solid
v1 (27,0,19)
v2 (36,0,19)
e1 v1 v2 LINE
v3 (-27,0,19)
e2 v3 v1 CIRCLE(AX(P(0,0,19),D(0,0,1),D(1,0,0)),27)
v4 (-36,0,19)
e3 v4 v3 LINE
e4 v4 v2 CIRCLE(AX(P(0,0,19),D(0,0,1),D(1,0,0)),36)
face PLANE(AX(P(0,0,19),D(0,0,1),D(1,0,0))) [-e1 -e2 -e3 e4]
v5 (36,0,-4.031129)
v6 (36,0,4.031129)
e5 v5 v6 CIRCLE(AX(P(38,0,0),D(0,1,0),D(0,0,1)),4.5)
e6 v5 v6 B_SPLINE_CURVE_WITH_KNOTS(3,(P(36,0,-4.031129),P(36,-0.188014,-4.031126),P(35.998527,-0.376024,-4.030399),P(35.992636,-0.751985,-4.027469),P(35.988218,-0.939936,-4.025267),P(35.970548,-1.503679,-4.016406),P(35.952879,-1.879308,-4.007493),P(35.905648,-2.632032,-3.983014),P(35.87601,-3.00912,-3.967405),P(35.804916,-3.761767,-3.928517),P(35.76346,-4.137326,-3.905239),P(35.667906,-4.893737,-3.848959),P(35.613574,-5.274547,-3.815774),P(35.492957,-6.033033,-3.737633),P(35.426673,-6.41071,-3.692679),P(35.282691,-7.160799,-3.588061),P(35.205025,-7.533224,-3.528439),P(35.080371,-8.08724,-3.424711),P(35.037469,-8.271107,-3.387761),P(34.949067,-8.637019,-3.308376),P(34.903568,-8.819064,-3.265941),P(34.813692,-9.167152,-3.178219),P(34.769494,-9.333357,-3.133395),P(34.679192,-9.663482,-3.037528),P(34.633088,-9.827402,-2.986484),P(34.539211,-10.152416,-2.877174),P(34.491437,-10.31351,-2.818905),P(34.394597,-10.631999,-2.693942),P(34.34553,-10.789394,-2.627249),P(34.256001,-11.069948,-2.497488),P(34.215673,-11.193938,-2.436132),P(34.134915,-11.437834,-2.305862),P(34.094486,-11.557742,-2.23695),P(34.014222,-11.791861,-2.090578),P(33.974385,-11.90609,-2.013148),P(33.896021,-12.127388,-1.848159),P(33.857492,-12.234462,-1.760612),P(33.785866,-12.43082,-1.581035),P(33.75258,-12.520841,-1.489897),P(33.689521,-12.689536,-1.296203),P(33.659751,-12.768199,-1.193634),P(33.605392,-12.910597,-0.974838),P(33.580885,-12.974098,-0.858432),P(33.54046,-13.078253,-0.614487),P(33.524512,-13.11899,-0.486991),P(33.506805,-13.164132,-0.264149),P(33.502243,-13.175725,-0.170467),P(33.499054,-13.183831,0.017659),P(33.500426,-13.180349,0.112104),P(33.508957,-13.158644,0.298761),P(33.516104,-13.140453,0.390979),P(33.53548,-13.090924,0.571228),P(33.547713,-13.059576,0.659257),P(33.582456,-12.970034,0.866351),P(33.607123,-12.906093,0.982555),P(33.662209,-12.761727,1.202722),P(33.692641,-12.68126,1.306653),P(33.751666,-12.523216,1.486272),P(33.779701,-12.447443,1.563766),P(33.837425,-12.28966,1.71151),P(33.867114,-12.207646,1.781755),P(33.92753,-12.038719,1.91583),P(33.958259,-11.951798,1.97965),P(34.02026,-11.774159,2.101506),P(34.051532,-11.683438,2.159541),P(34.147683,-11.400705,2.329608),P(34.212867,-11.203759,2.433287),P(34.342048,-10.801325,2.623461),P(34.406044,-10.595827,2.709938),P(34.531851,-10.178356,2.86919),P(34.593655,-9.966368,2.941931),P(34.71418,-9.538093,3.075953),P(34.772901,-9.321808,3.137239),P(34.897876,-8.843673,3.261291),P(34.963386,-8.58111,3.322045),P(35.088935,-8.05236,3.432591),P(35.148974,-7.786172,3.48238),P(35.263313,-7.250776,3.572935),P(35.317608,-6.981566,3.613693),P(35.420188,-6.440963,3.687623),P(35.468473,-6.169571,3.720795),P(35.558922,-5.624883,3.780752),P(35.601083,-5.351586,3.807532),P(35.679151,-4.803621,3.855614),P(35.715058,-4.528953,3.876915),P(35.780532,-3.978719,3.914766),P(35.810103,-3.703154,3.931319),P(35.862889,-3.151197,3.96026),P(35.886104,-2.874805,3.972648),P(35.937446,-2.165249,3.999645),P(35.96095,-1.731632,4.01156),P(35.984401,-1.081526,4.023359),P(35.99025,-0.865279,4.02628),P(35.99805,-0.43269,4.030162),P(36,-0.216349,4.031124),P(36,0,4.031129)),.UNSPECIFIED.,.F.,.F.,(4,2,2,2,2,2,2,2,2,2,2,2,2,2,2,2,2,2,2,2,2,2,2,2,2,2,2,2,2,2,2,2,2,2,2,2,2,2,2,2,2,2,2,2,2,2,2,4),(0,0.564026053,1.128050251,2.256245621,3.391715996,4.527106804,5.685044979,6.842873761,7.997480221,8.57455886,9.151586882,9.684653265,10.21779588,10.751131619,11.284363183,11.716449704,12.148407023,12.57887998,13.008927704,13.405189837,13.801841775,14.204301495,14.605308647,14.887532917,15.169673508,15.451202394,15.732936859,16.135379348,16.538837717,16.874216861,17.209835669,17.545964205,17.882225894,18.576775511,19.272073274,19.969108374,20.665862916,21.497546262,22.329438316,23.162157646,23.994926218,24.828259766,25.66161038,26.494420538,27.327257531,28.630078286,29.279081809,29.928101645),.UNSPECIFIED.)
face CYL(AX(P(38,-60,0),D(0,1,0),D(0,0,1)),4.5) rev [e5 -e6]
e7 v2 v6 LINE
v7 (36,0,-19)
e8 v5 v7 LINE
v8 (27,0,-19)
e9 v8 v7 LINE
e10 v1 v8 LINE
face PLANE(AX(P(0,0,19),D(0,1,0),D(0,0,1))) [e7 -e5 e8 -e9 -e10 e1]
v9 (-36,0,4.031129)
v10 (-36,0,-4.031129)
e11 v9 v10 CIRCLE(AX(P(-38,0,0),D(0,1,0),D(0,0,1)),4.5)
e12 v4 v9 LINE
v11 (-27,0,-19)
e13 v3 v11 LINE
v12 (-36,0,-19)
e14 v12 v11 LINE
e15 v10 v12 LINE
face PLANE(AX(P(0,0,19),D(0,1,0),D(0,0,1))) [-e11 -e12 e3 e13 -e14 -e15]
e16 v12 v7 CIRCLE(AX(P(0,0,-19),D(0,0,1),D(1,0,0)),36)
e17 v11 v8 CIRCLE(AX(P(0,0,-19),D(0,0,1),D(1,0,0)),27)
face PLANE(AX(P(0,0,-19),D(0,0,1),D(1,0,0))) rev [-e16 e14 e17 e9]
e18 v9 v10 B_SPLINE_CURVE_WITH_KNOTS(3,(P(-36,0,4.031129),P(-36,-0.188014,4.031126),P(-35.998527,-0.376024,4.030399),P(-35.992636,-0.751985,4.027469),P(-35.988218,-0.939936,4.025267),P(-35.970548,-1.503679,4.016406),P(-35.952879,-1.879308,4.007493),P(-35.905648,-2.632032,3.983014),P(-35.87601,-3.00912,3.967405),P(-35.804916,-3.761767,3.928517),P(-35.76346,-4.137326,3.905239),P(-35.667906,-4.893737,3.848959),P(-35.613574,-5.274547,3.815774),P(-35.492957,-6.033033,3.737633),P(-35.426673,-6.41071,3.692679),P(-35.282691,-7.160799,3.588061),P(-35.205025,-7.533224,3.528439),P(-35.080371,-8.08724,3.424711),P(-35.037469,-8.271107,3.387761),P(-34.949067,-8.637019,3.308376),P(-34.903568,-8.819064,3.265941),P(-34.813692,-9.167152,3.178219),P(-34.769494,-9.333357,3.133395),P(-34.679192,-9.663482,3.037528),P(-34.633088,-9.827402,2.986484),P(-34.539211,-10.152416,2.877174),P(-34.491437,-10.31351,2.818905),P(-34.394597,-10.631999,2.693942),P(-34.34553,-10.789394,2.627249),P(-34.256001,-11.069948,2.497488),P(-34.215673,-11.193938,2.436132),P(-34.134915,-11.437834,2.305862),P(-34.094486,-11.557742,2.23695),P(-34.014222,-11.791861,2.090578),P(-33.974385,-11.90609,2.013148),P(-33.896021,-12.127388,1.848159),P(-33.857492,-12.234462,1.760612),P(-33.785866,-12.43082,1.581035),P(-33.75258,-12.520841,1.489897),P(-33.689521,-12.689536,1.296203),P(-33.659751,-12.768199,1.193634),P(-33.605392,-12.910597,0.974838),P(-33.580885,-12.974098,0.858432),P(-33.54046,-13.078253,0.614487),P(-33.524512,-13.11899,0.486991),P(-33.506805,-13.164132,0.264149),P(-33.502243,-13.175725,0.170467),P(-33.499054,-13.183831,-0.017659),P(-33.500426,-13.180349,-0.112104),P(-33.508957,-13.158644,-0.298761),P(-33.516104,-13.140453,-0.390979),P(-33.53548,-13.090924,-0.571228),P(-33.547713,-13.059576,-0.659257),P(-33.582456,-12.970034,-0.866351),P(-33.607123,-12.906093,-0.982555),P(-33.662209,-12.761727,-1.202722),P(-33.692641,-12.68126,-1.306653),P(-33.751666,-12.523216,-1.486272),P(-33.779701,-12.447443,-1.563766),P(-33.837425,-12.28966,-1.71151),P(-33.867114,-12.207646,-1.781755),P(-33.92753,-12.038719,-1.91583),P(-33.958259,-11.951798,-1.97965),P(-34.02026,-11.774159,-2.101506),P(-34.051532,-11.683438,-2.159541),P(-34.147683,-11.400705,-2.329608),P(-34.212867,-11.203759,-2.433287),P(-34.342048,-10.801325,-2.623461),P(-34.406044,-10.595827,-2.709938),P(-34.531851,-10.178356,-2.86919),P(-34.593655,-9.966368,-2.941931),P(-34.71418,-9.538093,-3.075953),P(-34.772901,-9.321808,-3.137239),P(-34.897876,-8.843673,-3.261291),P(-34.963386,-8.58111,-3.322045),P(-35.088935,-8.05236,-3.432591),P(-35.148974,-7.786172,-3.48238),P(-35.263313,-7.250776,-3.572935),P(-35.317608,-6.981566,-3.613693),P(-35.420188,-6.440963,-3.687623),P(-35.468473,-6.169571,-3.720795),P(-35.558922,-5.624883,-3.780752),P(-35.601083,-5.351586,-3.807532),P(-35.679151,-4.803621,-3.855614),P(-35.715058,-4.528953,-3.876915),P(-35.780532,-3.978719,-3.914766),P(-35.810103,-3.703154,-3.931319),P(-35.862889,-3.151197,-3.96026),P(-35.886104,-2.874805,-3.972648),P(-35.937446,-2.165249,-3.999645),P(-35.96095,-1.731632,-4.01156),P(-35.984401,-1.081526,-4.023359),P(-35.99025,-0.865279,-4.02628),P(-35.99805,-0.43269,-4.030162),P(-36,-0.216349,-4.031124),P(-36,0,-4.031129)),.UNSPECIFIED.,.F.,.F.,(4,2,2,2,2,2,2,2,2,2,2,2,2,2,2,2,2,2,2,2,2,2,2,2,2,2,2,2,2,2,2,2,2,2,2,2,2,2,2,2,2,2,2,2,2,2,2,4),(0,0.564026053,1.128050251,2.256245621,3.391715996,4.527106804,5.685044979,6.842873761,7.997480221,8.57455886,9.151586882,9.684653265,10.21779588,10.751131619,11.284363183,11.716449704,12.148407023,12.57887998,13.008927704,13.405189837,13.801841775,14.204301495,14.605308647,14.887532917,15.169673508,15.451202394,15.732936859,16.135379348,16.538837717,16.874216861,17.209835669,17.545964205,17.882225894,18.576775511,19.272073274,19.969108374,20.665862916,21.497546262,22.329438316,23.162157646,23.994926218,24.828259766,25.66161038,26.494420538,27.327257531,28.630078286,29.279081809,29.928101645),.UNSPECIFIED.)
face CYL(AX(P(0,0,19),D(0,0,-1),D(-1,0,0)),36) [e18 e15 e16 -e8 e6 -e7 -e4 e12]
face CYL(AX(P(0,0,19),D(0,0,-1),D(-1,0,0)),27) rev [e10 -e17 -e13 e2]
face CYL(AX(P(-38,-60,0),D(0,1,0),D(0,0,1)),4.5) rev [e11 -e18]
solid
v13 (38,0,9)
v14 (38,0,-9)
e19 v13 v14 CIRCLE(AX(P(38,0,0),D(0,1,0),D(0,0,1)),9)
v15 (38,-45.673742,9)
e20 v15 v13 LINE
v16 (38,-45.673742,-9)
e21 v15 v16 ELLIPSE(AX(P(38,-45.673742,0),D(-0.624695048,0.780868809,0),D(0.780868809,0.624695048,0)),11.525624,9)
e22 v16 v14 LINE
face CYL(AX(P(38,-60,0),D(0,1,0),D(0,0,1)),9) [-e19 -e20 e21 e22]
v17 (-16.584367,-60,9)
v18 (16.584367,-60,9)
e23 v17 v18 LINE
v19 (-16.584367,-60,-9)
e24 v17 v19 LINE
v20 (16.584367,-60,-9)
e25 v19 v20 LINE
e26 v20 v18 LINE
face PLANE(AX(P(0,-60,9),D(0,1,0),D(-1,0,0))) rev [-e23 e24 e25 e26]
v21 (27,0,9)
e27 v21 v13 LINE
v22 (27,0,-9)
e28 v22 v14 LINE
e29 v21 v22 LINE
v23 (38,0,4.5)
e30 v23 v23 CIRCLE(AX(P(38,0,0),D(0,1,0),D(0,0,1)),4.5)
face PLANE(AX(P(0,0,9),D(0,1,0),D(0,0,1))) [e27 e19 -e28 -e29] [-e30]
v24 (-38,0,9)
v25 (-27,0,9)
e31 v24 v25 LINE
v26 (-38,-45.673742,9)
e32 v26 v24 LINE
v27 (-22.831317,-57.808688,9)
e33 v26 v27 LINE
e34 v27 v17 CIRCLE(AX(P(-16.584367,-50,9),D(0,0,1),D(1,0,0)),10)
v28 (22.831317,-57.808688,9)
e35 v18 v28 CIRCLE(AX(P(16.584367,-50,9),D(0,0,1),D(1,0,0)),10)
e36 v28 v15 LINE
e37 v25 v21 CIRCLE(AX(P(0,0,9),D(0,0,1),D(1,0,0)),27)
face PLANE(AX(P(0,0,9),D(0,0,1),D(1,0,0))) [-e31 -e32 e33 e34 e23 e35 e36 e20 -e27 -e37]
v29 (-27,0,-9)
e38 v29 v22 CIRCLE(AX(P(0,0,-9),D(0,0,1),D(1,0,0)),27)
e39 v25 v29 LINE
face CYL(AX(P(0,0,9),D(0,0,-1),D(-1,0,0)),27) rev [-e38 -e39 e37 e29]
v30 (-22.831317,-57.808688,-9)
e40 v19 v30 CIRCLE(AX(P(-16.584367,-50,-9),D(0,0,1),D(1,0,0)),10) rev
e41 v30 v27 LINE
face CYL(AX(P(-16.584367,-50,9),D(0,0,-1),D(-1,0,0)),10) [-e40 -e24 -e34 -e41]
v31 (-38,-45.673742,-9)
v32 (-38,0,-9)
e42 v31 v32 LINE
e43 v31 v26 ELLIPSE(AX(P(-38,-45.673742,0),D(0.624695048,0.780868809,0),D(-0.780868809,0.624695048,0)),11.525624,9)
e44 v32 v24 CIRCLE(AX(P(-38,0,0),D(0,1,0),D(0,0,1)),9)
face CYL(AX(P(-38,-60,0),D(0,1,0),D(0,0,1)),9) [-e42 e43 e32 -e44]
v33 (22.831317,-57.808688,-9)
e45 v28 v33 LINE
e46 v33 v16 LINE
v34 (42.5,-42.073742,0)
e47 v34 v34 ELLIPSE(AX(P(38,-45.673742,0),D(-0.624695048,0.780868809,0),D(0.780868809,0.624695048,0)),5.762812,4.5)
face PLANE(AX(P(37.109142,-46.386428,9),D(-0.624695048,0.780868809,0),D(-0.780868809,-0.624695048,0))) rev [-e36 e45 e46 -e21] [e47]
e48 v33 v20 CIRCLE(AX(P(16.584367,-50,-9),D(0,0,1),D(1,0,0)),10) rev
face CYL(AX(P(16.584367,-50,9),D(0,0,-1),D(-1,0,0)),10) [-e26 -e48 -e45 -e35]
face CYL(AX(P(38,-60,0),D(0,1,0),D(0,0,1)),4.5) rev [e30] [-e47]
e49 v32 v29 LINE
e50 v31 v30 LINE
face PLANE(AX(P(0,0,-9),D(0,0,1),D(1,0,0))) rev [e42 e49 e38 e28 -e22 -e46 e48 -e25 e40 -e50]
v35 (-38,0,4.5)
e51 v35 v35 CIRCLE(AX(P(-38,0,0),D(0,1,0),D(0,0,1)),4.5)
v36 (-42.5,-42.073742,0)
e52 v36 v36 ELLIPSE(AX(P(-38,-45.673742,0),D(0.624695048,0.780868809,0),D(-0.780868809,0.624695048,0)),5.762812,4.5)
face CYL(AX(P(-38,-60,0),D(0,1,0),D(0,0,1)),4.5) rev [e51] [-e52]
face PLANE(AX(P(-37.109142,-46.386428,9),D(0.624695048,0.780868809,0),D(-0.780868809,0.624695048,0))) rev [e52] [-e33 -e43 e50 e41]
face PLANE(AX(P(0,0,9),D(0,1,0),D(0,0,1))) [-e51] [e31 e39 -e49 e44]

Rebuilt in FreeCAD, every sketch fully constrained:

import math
import FreeCAD as App
import Part
import Sketcher
from FreeCAD import Vector


def edges_at(feature, points):
    """Names of the edges that pass closest to the given points."""
    edges = feature.Shape.Edges
    near = lambda p: min(range(len(edges)), key=lambda i: edges[i].distToShape(Part.Vertex(*p))[0])
    return sorted({f"Edge{near(p) + 1}" for p in points})


def add_polygon(sketch, points):
    """Adds a closed chain of lines whose ends are joined by coincident constraints."""
    first, n = sketch.GeometryCount, len(points)
    for a, b in zip(points, points[1:] + points[:1]):
        sketch.addGeometry(Part.LineSegment(App.Vector(*a, 0), App.Vector(*b, 0)), False)
    for i in range(n):
        sketch.addConstraint(Sketcher.Constraint("Coincident", first + i, 2, first + (i + 1) % n, 1))

doc = App.newDocument("Part")
body = doc.addObject("PartDesign::Body", "Body")

sketch1 = body.newObject("Sketcher::SketchObject", "Sketch")
sketch1.AttachmentSupport = (doc.getObject("XY_Plane"), [""])
sketch1.MapMode = "FlatFace"
sketch1.addGeometry(Part.LineSegment(Vector(-45, 0, 0), Vector(-45, -40, 0)), False)
sketch1.addGeometry(Part.LineSegment(Vector(-45, -40, 0), Vector(-20, -60, 0)), False)
sketch1.addGeometry(Part.LineSegment(Vector(-20, -60, 0), Vector(20, -60, 0)), False)
sketch1.addGeometry(Part.LineSegment(Vector(20, -60, 0), Vector(45, -40, 0)), False)
sketch1.addGeometry(Part.LineSegment(Vector(45, -40, 0), Vector(45, 0, 0)), False)
sketch1.addGeometry(Part.LineSegment(Vector(45, 0, 0), Vector(27, 0, 0)), False)
sketch1.addGeometry(Part.ArcOfCircle(Part.Circle(Vector(0, 0, 0), Vector(0, 0, 1), 27), math.radians(180), math.radians(360)), False)
sketch1.addGeometry(Part.LineSegment(Vector(-27, 0, 0), Vector(-45, 0, 0)), False)
sketch1.addConstraint(Sketcher.Constraint("Coincident", 0, 2, 1, 1))
sketch1.addConstraint(Sketcher.Constraint("Coincident", 1, 2, 2, 1))
sketch1.addConstraint(Sketcher.Constraint("Coincident", 2, 2, 3, 1))
sketch1.addConstraint(Sketcher.Constraint("Coincident", 3, 2, 4, 1))
sketch1.addConstraint(Sketcher.Constraint("Coincident", 4, 2, 5, 1))
sketch1.addConstraint(Sketcher.Constraint("Coincident", 5, 2, 6, 2))
sketch1.addConstraint(Sketcher.Constraint("Coincident", 6, 1, 7, 1))
sketch1.addConstraint(Sketcher.Constraint("Coincident", 7, 2, 0, 1))
sketch1.addConstraint(Sketcher.Constraint("Vertical", 0))
sketch1.addConstraint(Sketcher.Constraint("Horizontal", 2))
sketch1.addConstraint(Sketcher.Constraint("Vertical", 4))
sketch1.addConstraint(Sketcher.Constraint("Horizontal", 5))
sketch1.addConstraint(Sketcher.Constraint("Horizontal", 7))
sketch1.addConstraint(Sketcher.Constraint("Coincident", 6, 3, -1, 1))
sketch1.addConstraint(Sketcher.Constraint("Symmetric", 4, 2, 7, 2, -1, 1))
sketch1.addConstraint(Sketcher.Constraint("PointOnObject", 4, 2, -1))
sketch1.addConstraint(Sketcher.Constraint("Horizontal", 0, 2, 3, 2))
sketch1.addConstraint(Sketcher.Constraint("Equal", 1, 3))
sketch1.addConstraint(Sketcher.Constraint("Radius", 6, 27.0))
sketch1.addConstraint(Sketcher.Constraint("DistanceY", 0, 2, 0, 1, 40.0))
sketch1.addConstraint(Sketcher.Constraint("DistanceY", 1, 2, -1, 1, 60.0))
sketch1.addConstraint(Sketcher.Constraint("DistanceX", 0, 2, 1, 2, 25.0))
sketch1.addConstraint(Sketcher.Constraint("DistanceX", 2, 1, 2, 2, 40.184355))
pad1 = body.newObject("PartDesign::Pad", "Pad")
pad1.Profile = sketch1
pad1.Length = 18
pad1.Midplane = True
body2 = doc.addObject("PartDesign::Body", "Body001")

sketch2 = body2.newObject("Sketcher::SketchObject", "Sketch001")
sketch2.AttachmentSupport = (doc.getObject("XY_Plane001"), [""])
sketch2.MapMode = "FlatFace"
sketch2.addGeometry(Part.LineSegment(Vector(-27, 0, 0), Vector(-36, 0, 0)), False)
sketch2.addGeometry(Part.ArcOfCircle(Part.Circle(Vector(0, 0, 0), Vector(0, 0, 1), 36), math.radians(180), math.radians(360)), False)
sketch2.addGeometry(Part.LineSegment(Vector(36, 0, 0), Vector(27, 0, 0)), False)
sketch2.addGeometry(Part.ArcOfCircle(Part.Circle(Vector(0, 0, 0), Vector(0, 0, 1), 27), math.radians(180), math.radians(360)), False)
sketch2.addConstraint(Sketcher.Constraint("Coincident", 0, 2, 1, 1))
sketch2.addConstraint(Sketcher.Constraint("Coincident", 1, 2, 2, 1))
sketch2.addConstraint(Sketcher.Constraint("Coincident", 2, 2, 3, 2))
sketch2.addConstraint(Sketcher.Constraint("Coincident", 3, 1, 0, 1))
sketch2.addConstraint(Sketcher.Constraint("Horizontal", 0))
sketch2.addConstraint(Sketcher.Constraint("Horizontal", 2))
sketch2.addConstraint(Sketcher.Constraint("Coincident", 1, 3, -1, 1))
sketch2.addConstraint(Sketcher.Constraint("Coincident", 3, 3, -1, 1))
sketch2.addConstraint(Sketcher.Constraint("PointOnObject", 0, 2, -1))
sketch2.addConstraint(Sketcher.Constraint("PointOnObject", 1, 2, -1))
sketch2.addConstraint(Sketcher.Constraint("Radius", 1, 36.0))
sketch2.addConstraint(Sketcher.Constraint("Radius", 3, 27.0))
pad2 = body2.newObject("PartDesign::Pad", "Pad001")
pad2.Profile = sketch2
pad2.Length = 38
pad2.Midplane = True
body3 = doc.addObject("PartDesign::Body", "Body002")
body3.AllowCompound = True

sketch3 = body3.newObject("Sketcher::SketchObject", "Sketch002")
sketch3.AttachmentSupport = (doc.getObject("XZ_Plane002"), [""])
sketch3.MapMode = "FlatFace"
sketch3.addGeometry(Part.Circle(Vector(-38, 0, 0), Vector(0, 0, 1), 4.5), False)
sketch3.addGeometry(Part.Circle(Vector(38, 0, 0), Vector(0, 0, 1), 4.5), False)
sketch3.addConstraint(Sketcher.Constraint("Equal", 0, 1))
sketch3.addConstraint(Sketcher.Constraint("Symmetric", 0, 3, 1, 3, -1, 1))
sketch3.addConstraint(Sketcher.Constraint("PointOnObject", 0, 3, -1))
sketch3.addConstraint(Sketcher.Constraint("Diameter", 0, 9.0))
sketch3.addConstraint(Sketcher.Constraint("DistanceX", 0, 3, -1, 1, 38.0))
pad3 = body3.newObject("PartDesign::Pad", "Pad002")
pad3.Profile = sketch3
pad3.Length = 60
doc.recompute()

body4 = doc.addObject("PartDesign::Body", "Body003")
body4.BaseFeature = body3
boolean = body.newObject("PartDesign::Boolean", "Boolean")
boolean.Type = "Cut"
boolean.addObjects([body4])
doc.recompute()

sketch4 = body.newObject("Sketcher::SketchObject", "Sketch003")
sketch4.AttachmentSupport = (doc.getObject("XZ_Plane"), [""])
sketch4.MapMode = "FlatFace"
sketch4.addGeometry(Part.ArcOfCircle(Part.Circle(Vector(-38, 0, 0), Vector(0, 0, 1), 9), math.radians(-142), math.radians(-90)), False)
sketch4.addGeometry(Part.LineSegment(Vector(-38, -9, 0), Vector(-45.1, -9, 0)), False)
sketch4.addGeometry(Part.LineSegment(Vector(-45.1, -9, 0), Vector(-45.1, -5.5, 0)), False)
sketch4.addGeometry(Part.ArcOfCircle(Part.Circle(Vector(-38, 0, 0), Vector(0, 0, 1), 9), math.radians(90), math.radians(142)), False)
sketch4.addGeometry(Part.LineSegment(Vector(-45.1, 5.5, 0), Vector(-45.1, 9, 0)), False)
sketch4.addGeometry(Part.LineSegment(Vector(-45.1, 9, 0), Vector(-38, 9, 0)), False)
sketch4.addGeometry(Part.LineSegment(Vector(45.1, -9, 0), Vector(38, -9, 0)), False)
sketch4.addGeometry(Part.ArcOfCircle(Part.Circle(Vector(38, 0, 0), Vector(0, 0, 1), 9), math.radians(-90), math.radians(-38)), False)
sketch4.addGeometry(Part.LineSegment(Vector(45.1, -5.5, 0), Vector(45.1, -9, 0)), False)
sketch4.addGeometry(Part.ArcOfCircle(Part.Circle(Vector(38, 0, 0), Vector(0, 0, 1), 9), math.radians(38), math.radians(90)), False)
sketch4.addGeometry(Part.LineSegment(Vector(38, 9, 0), Vector(45.1, 9, 0)), False)
sketch4.addGeometry(Part.LineSegment(Vector(45.1, 9, 0), Vector(45.1, 5.5, 0)), False)
sketch4.addConstraint(Sketcher.Constraint("Tangent", 0, 2, 1, 1))
sketch4.addConstraint(Sketcher.Constraint("Coincident", 1, 2, 2, 1))
sketch4.addConstraint(Sketcher.Constraint("Coincident", 2, 2, 0, 1))
sketch4.addConstraint(Sketcher.Constraint("Coincident", 3, 2, 4, 1))
sketch4.addConstraint(Sketcher.Constraint("Coincident", 4, 2, 5, 1))
sketch4.addConstraint(Sketcher.Constraint("Tangent", 5, 2, 3, 1))
sketch4.addConstraint(Sketcher.Constraint("Tangent", 6, 2, 7, 1))
sketch4.addConstraint(Sketcher.Constraint("Coincident", 7, 2, 8, 1))
sketch4.addConstraint(Sketcher.Constraint("Coincident", 8, 2, 6, 1))
sketch4.addConstraint(Sketcher.Constraint("Tangent", 9, 2, 10, 1))
sketch4.addConstraint(Sketcher.Constraint("Coincident", 10, 2, 11, 1))
sketch4.addConstraint(Sketcher.Constraint("Coincident", 11, 2, 9, 1))
sketch4.addConstraint(Sketcher.Constraint("Horizontal", 1))
sketch4.addConstraint(Sketcher.Constraint("Vertical", 2))
sketch4.addConstraint(Sketcher.Constraint("Vertical", 4))
sketch4.addConstraint(Sketcher.Constraint("Horizontal", 5))
sketch4.addConstraint(Sketcher.Constraint("Horizontal", 6))
sketch4.addConstraint(Sketcher.Constraint("Vertical", 8))
sketch4.addConstraint(Sketcher.Constraint("Horizontal", 10))
sketch4.addConstraint(Sketcher.Constraint("Vertical", 11))
sketch4.addConstraint(Sketcher.Constraint("Coincident", 3, 3, 0, 3))
sketch4.addConstraint(Sketcher.Constraint("Coincident", 9, 3, 7, 3))
sketch4.addConstraint(Sketcher.Constraint("Equal", 0, 3))
sketch4.addConstraint(Sketcher.Constraint("Equal", 3, 7))
sketch4.addConstraint(Sketcher.Constraint("Equal", 7, 9))
sketch4.addConstraint(Sketcher.Constraint("Symmetric", 0, 3, 7, 3, -1, 1))
sketch4.addConstraint(Sketcher.Constraint("Symmetric", 2, 2, 7, 2, -2))
sketch4.addConstraint(Sketcher.Constraint("Horizontal", 3, 2, 11, 2))
sketch4.addConstraint(Sketcher.Constraint("Vertical", 2, 2, 3, 2))
sketch4.addConstraint(Sketcher.Constraint("Radius", 0, 9.0))
sketch4.addConstraint(Sketcher.Constraint("DistanceX", 0, 3, -1, 1, 38.0))
sketch4.addConstraint(Sketcher.Constraint("DistanceY", 2, 1, 2, 2, 3.45915))
pocket1 = body.newObject("PartDesign::Pocket", "Pocket")
pocket1.Profile = sketch4
pocket1.Length = 60
pocket1.Reversed = True

sketch5 = body.newObject("Sketcher::SketchObject", "Sketch004")
sketch5.AttachmentSupport = (doc.getObject("XZ_Plane"), [""])
sketch5.MapMode = "FlatFace"
sketch5.addGeometry(Part.LineSegment(Vector(-45, 6, 0), Vector(-45, -6, 0)), False)
sketch5.addGeometry(Part.ArcOfCircle(Part.Circle(Vector(-38, 0, 0), Vector(0, 0, 1), 9), math.radians(142), math.radians(218)), False)
sketch5.addGeometry(Part.ArcOfCircle(Part.Circle(Vector(38, 0, 0), Vector(0, 0, 1), 9), math.radians(-38), math.radians(38)), False)
sketch5.addGeometry(Part.LineSegment(Vector(45, -6, 0), Vector(45, 6, 0)), False)
sketch5.addConstraint(Sketcher.Constraint("Coincident", 0, 1, 1, 1))
sketch5.addConstraint(Sketcher.Constraint("Coincident", 1, 2, 0, 2))
sketch5.addConstraint(Sketcher.Constraint("Coincident", 2, 1, 3, 1))
sketch5.addConstraint(Sketcher.Constraint("Coincident", 3, 2, 2, 2))
sketch5.addConstraint(Sketcher.Constraint("Vertical", 0))
sketch5.addConstraint(Sketcher.Constraint("Vertical", 3))
sketch5.addConstraint(Sketcher.Constraint("Equal", 1, 2))
sketch5.addConstraint(Sketcher.Constraint("Symmetric", 1, 3, 2, 3, -1, 1))
sketch5.addConstraint(Sketcher.Constraint("Symmetric", 1, 2, 2, 1, -2))
sketch5.addConstraint(Sketcher.Constraint("Radius", 1, 9.0))
sketch5.addConstraint(Sketcher.Constraint("DistanceX", 1, 3, -1, 1, 38.0))
sketch5.addConstraint(Sketcher.Constraint("DistanceY", 0, 2, 0, 1, 11.0817))
pad4 = body.newObject("PartDesign::Pad", "Pad003")
pad4.Profile = sketch5
pad4.Length = 60

sketch6 = body.newObject("Sketcher::SketchObject", "Sketch005")
sketch6.AttachmentSupport = (doc.getObject("XY_Plane"), [""])
sketch6.MapMode = "FlatFace"
add_polygon(sketch6, [(-20, -60), (-62, -26), (-62, -60)])
add_polygon(sketch6, [(66, -23), (20, -60), (70, -60)])
sketch6.addConstraint(Sketcher.Constraint("Vertical", 1))
sketch6.addConstraint(Sketcher.Constraint("Horizontal", 2))
sketch6.addConstraint(Sketcher.Constraint("Horizontal", 4))
sketch6.addConstraint(Sketcher.Constraint("Symmetric", 2, 2, 3, 2, -2))
sketch6.addConstraint(Sketcher.Constraint("DistanceY", 1, 2, -1, 1, 60.0))
sketch6.addConstraint(Sketcher.Constraint("DistanceX", 2, 1, 2, 2, 42.371789))
sketch6.addConstraint(Sketcher.Constraint("DistanceY", 1, 2, 1, 1, 33.897431))
sketch6.addConstraint(Sketcher.Constraint("DistanceX", 3, 2, 5, 2, 45.829701))
sketch6.addConstraint(Sketcher.Constraint("Distance", 5, 36.870308))
sketch6.addConstraint(Sketcher.Constraint("DistanceX", 4, 1, 4, 2, 49.726918))
sketch6.addConstraint(Sketcher.Constraint("DistanceX", -1, 1, 5, 2, 65.921878))
pocket2 = body.newObject("PartDesign::Pocket", "Pocket001")
pocket2.Profile = sketch6
pocket2.Length = 60
pocket2.Midplane = True
doc.recompute()

fillet = body.newObject("PartDesign::Fillet", "Fillet")
fillet.Base = (pocket2, edges_at(pocket2, [(20.092, -60, 0), (-20.092, -60, 0)]))
fillet.Radius = 10
doc.recompute()

boolean2 = body2.newObject("PartDesign::Boolean", "Boolean001")
boolean2.Type = "Cut"
boolean2.addObjects([body3])

doc.recompute()
